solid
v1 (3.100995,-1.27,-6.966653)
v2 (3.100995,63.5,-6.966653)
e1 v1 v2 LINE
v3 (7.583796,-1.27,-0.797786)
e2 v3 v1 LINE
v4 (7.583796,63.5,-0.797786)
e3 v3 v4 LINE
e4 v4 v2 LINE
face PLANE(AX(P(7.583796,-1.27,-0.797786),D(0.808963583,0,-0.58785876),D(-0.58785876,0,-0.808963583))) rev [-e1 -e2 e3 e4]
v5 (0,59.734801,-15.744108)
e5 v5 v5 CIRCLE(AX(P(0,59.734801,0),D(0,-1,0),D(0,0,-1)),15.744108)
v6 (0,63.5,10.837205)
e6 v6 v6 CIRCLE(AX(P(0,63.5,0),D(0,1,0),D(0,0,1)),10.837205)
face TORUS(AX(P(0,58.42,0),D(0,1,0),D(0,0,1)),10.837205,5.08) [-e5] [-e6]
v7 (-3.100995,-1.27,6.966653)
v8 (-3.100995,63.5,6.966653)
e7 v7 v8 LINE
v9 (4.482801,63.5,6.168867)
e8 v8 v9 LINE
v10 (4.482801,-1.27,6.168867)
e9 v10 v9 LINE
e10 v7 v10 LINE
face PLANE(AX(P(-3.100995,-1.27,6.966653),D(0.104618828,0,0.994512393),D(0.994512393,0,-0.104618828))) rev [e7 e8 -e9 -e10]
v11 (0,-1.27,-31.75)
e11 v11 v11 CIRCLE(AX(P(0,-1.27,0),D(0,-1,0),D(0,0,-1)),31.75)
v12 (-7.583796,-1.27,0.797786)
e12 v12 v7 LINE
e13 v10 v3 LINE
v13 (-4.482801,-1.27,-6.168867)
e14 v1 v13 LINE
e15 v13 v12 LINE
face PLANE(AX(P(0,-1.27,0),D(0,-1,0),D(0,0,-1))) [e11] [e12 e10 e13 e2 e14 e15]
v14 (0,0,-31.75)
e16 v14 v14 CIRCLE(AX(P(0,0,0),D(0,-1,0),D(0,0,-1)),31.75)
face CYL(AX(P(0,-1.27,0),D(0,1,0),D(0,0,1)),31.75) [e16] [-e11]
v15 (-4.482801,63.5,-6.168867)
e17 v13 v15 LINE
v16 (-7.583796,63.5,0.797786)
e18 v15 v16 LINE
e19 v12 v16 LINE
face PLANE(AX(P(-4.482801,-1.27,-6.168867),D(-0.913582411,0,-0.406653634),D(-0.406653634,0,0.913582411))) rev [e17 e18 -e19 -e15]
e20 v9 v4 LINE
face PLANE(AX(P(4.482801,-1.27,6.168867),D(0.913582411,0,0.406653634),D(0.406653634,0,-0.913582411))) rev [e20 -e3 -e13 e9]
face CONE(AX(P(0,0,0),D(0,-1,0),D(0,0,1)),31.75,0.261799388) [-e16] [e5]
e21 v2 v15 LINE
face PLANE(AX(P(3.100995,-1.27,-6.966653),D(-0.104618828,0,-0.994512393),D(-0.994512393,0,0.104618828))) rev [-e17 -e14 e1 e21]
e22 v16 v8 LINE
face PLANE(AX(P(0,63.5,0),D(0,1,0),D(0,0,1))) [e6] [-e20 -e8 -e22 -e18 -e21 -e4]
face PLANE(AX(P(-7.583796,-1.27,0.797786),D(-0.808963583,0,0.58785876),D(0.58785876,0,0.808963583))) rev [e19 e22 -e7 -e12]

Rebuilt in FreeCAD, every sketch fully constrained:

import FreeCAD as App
import Part
import Sketcher
Q = App.Units.Quantity


def edges_at(feature, points):
    """Names of the edges that pass closest to the given points."""
    edges = feature.Shape.Edges
    near = lambda p: min(range(len(edges)), key=lambda i: edges[i].distToShape(Part.Vertex(*p))[0])
    return sorted({f"Edge{near(p) + 1}" for p in points})

doc = App.newDocument("Part")
body = doc.addObject("PartDesign::Body", "Body")

# Sketch on XZ plane
sketch1 = body.newObject("Sketcher::SketchObject", "Sketch")
sketch1.AttachmentSupport = (doc.getObject("XZ_Plane"), [""])
sketch1.MapMode = "FlatFace"
sketch1.addGeometry(Part.Circle(App.Vector(0, 0, 0), App.Vector(0, 0, 1), 32), False)
sketch1.addConstraint([
    Sketcher.Constraint("Coincident", 0, 3, -1, 1),
    Sketcher.Constraint("Diameter", 0, Q("2.5 in")),
])
pad1 = body.newObject("PartDesign::Pad", "Pad")
pad1.Profile = sketch1
pad1.Length = Q("2.5 in")
pad1.Reversed = True
pad1.TaperAngle = -15

# Sketch on XZ plane
sketch2 = body.newObject("Sketcher::SketchObject", "Sketch001")
sketch2.AttachmentSupport = (doc.getObject("XZ_Plane"), [""])
sketch2.MapMode = "FlatFace"
sketch2.addGeometry(Part.Circle(App.Vector(0, 0, 0), App.Vector(0, 0, 1), 32), False)
sketch2.addConstraint([
    Sketcher.Constraint("Coincident", 0, 3, -1, 1),
    Sketcher.Constraint("Diameter", 0, Q("2.5 in")),
])
pad2 = body.newObject("PartDesign::Pad", "Pad001")
pad2.Profile = sketch2
pad2.Length = Q("0.05 in")

# Sketch on XZ plane
sketch3 = body.newObject("Sketcher::SketchObject", "Sketch002")
sketch3.AttachmentSupport = (doc.getObject("XZ_Plane"), [""])
sketch3.MapMode = "FlatFace"
sketch3.addGeometry([
    Part.LineSegment(App.Vector(4, 6, 0), App.Vector(8, -1, 0)),  # 0
    Part.LineSegment(App.Vector(8, -1, 0), App.Vector(3, -7, 0)),  # 1
    Part.LineSegment(App.Vector(3, -7, 0), App.Vector(-4, -6, 0)),  # 2
    Part.LineSegment(App.Vector(-4, -6, 0), App.Vector(-8, 1, 0)),  # 3
    Part.LineSegment(App.Vector(-8, 1, 0), App.Vector(-3, 7, 0)),  # 4
    Part.LineSegment(App.Vector(-3, 7, 0), App.Vector(4, 6, 0)),  # 5
], False)
sketch3.addConstraint([
    Sketcher.Constraint("Coincident", 0, 2, 1, 1),
    Sketcher.Constraint("Coincident", 1, 2, 2, 1),
    Sketcher.Constraint("Coincident", 2, 2, 3, 1),
    Sketcher.Constraint("Coincident", 3, 2, 4, 1),
    Sketcher.Constraint("Coincident", 4, 2, 5, 1),
    Sketcher.Constraint("Coincident", 5, 2, 0, 1),
    Sketcher.Constraint("Symmetric", 0, 2, 3, 2, -1, 1),
    Sketcher.Constraint("Symmetric", 1, 2, 4, 2, -1, 1),
    Sketcher.Constraint("Symmetric", 2, 2, 5, 2, -1, 1),
    Sketcher.Constraint("Equal", 0, 1),
    Sketcher.Constraint("Equal", 1, 2),
    Sketcher.Constraint("DistanceX", 2, 2, -1, 1, Q("4.482801 mm")),
    Sketcher.Constraint("DistanceX", 1, 2, 0, 2, Q("4.482801 mm")),
    Sketcher.Constraint("DistanceY", 2, 2, 0, 2, Q("5.371081 mm")),
    Sketcher.Constraint("DistanceX", 3, 2, 1, 2, Q("10.684791 mm")),
])
pocket1 = body.newObject("PartDesign::Pocket", "Pocket")
pocket1.Profile = sketch3
pocket1.Type = "ThroughAll"
pocket1.Midplane = True
doc.recompute()

fillet = body.newObject("PartDesign::Fillet", "Fillet")
fillet.Base = (pocket1, edges_at(pocket1, [(-14.735, 63.5, 0)]))
fillet.Radius = Q("0.2 in")

doc.recompute()
